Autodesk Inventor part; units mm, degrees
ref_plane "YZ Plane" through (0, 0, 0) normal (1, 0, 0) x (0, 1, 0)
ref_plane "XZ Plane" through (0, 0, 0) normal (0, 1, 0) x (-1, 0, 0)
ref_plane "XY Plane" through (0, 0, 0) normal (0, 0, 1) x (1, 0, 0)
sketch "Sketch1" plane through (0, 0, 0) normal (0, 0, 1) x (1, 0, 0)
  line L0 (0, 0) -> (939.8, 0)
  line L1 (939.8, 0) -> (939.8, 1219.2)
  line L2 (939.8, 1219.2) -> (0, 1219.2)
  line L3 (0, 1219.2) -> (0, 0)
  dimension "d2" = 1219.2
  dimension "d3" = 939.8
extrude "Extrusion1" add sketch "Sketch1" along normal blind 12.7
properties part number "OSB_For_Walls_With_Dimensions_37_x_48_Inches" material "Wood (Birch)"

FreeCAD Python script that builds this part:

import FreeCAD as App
import Part
import Sketcher
Q = App.Units.Quantity

doc = App.newDocument("Part")
body = doc.addObject("PartDesign::Body", "Body")

# Sketch on XY plane
sketch1 = body.newObject("Sketcher::SketchObject", "Sketch")
sketch1.AttachmentSupport = (doc.getObject("XY_Plane"), [""])
sketch1.MapMode = "FlatFace"
sketch1.addGeometry([
    Part.LineSegment(App.Vector(0, 1219, 0), App.Vector(0, 0, 0)),
    Part.LineSegment(App.Vector(0, 0, 0), App.Vector(940, 0, 0)),
    Part.LineSegment(App.Vector(940, 0, 0), App.Vector(940, 1219, 0)),
    Part.LineSegment(App.Vector(940, 1219, 0), App.Vector(0, 1219, 0)),
], False)
sketch1.addConstraint([
    Sketcher.Constraint("Coincident", 0, 2, 1, 1),
    Sketcher.Constraint("Coincident", 1, 2, 2, 1),
    Sketcher.Constraint("Coincident", 2, 2, 3, 1),
    Sketcher.Constraint("Coincident", 3, 2, 0, 1),
    Sketcher.Constraint("Vertical", 0),
    Sketcher.Constraint("Horizontal", 1),
    Sketcher.Constraint("Vertical", 2),
    Sketcher.Constraint("Horizontal", 3),
    Sketcher.Constraint("Coincident", 0, 2, -1, 1),
    Sketcher.Constraint("DistanceX", 1, 1, 1, 2, Q("37 in")),
    Sketcher.Constraint("DistanceY", 0, 2, 0, 1, Q("48 in")),
])
pad1 = body.newObject("PartDesign::Pad", "Pad")
pad1.Profile = sketch1
pad1.Length = Q("0.5 in")

doc.recompute()
